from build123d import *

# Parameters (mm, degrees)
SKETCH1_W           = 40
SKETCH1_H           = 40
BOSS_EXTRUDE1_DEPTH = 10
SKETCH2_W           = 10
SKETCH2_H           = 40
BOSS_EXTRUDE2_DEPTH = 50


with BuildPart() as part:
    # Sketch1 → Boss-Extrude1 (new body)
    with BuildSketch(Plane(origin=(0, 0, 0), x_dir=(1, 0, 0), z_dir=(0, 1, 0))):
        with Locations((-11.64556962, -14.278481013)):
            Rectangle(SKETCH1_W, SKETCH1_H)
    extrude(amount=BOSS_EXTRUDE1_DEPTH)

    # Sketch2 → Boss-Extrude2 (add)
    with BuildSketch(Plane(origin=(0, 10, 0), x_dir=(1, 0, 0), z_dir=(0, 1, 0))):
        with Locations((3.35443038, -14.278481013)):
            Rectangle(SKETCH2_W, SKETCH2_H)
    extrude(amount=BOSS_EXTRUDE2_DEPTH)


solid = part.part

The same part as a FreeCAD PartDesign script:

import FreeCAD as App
import Part
import Sketcher
from FreeCAD import Vector


def add_polygon(sketch, points):
    """Adds a closed chain of lines whose ends are joined by coincident constraints."""
    first, n = sketch.GeometryCount, len(points)
    for a, b in zip(points, points[1:] + points[:1]):
        sketch.addGeometry(Part.LineSegment(App.Vector(*a, 0), App.Vector(*b, 0)), False)
    for i in range(n):
        sketch.addConstraint(Sketcher.Constraint("Coincident", first + i, 2, first + (i + 1) % n, 1))

doc = App.newDocument("Part")
body = doc.addObject("PartDesign::Body", "Body")

# Sketch on XZ plane
sketch1 = doc.addObject("Sketcher::SketchObject", "Sketch")
body.addObject(sketch1)
sketch1.AttachmentSupport = (doc.XZ_Plane, [""])
sketch1.MapMode = "FlatFace"
add_polygon(sketch1, [(-32, -6), (-32, 34), (8, 34), (8, -6)])  # lines 0-3
sketch1.addConstraint(Sketcher.Constraint("Vertical", 0))
sketch1.addConstraint(Sketcher.Constraint("Horizontal", 1))
sketch1.addConstraint(Sketcher.Constraint("Vertical", 2))
sketch1.addConstraint(Sketcher.Constraint("Horizontal", 3))
sketch1.addConstraint(Sketcher.Constraint("Equal", 3, 0))
sketch1.addConstraint(Sketcher.Constraint("DistanceX", 1, 1, 1, 2, 40.0))
sketch1.addConstraint(Sketcher.Constraint("DistanceX", 0, 2, -1, 1, 31.64557))
sketch1.addConstraint(Sketcher.Constraint("DistanceY", -1, 1, 0, 2, 34.278481))
pad1 = doc.addObject("PartDesign::Pad", "Pad")
body.addObject(pad1)
pad1.Profile = sketch1
pad1.Length = 10
pad1.Reversed = True

# Sketch on XZ plane
sketch2 = doc.addObject("Sketcher::SketchObject", "Sketch001")
body.addObject(sketch2)
sketch2.AttachmentSupport = (doc.XZ_Plane, [""])
sketch2.MapMode = "FlatFace"
sketch2.AttachmentOffset = App.Placement(Vector(0, 0, -10), App.Rotation())
add_polygon(sketch2, [(-2, -6), (-2, 34), (8, 34), (8, -6)])  # lines 0-3
sketch2.addConstraint(Sketcher.Constraint("Vertical", 0))
sketch2.addConstraint(Sketcher.Constraint("Horizontal", 1))
sketch2.addConstraint(Sketcher.Constraint("Vertical", 2))
sketch2.addConstraint(Sketcher.Constraint("Horizontal", 3))
sketch2.addConstraint(Sketcher.Constraint("DistanceX", 1, 1, 1, 2, 10.0))
sketch2.addConstraint(Sketcher.Constraint("DistanceY", 0, 1, 0, 2, 40.0))
sketch2.addConstraint(Sketcher.Constraint("DistanceX", 0, 2, -1, 1, 1.64557))
sketch2.addConstraint(Sketcher.Constraint("DistanceY", -1, 1, 0, 2, 34.278481))
pad2 = doc.addObject("PartDesign::Pad", "Pad001")
body.addObject(pad2)
pad2.Profile = sketch2
pad2.Length = 50
pad2.Reversed = True

doc.recompute()
